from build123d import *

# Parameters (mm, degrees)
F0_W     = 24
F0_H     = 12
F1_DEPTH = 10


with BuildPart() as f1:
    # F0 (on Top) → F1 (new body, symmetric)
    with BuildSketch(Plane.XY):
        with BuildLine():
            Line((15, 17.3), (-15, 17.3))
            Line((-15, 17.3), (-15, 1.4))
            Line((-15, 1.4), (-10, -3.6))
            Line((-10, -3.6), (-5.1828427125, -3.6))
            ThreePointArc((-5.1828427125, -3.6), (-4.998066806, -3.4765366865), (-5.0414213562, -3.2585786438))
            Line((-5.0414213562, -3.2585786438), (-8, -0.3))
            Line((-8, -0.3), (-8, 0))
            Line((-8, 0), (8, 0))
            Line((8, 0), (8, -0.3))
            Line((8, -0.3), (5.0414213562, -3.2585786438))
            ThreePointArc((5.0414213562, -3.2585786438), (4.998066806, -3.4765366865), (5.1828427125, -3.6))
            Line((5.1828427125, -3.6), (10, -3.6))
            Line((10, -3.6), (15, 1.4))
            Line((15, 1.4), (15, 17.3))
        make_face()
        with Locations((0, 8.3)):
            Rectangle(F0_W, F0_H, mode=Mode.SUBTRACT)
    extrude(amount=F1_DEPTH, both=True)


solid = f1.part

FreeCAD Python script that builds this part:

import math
import FreeCAD as App
import Part
import Sketcher

V = App.Vector
Q = App.Units.Quantity


def add_polygon(sketch, points):
    """Adds a closed chain of lines whose ends are joined by coincident constraints."""
    first, n = sketch.GeometryCount, len(points)
    for a, b in zip(points, points[1:] + points[:1]):
        sketch.addGeometry(Part.LineSegment(App.Vector(*a, 0), App.Vector(*b, 0)), False)
    for i in range(n):
        sketch.addConstraint(Sketcher.Constraint("Coincident", first + i, 2, first + (i + 1) % n, 1))

doc = App.newDocument("Part")
body = doc.addObject("PartDesign::Body", "Body")

# Sketch on XY plane
sketch1 = body.newObject("Sketcher::SketchObject", "Sketch")
sketch1.AttachmentSupport = (doc.getObject("XY_Plane"), [""])
sketch1.MapMode = "FlatFace"
sketch1.addGeometry(Part.LineSegment(V(15, 17.3, 0), V(-15, 17.3, 0)), False)  # 0
sketch1.addGeometry(Part.LineSegment(V(-15, 17.3, 0), V(-15, 1.4, 0)), False)  # 1
sketch1.addGeometry(Part.LineSegment(V(-15, 1.4, 0), V(-10, -3.6, 0)), False)  # 2
sketch1.addGeometry(Part.LineSegment(V(-10, -3.6, 0), V(-5.18, -3.6, 0)), False)  # 3
sketch1.addGeometry(Part.ArcOfCircle(Part.Circle(V(-5.18, -3.4, 0), V(0, 0, 1), 0.2), math.radians(-90), math.radians(45)), False)  # 4
sketch1.addGeometry(Part.LineSegment(V(-5.04, -3.26, 0), V(-8, -0.3, 0)), False)  # 5
sketch1.addGeometry(Part.LineSegment(V(-8, -0.3, 0), V(-8, 0, 0)), False)  # 6
sketch1.addGeometry(Part.LineSegment(V(-8, 0, 0), V(8, 0, 0)), False)  # 7
sketch1.addGeometry(Part.LineSegment(V(8, 0, 0), V(8, -0.3, 0)), False)  # 8
sketch1.addGeometry(Part.LineSegment(V(8, -0.3, 0), V(5.04, -3.26, 0)), False)  # 9
sketch1.addGeometry(Part.ArcOfCircle(Part.Circle(V(5.18, -3.4, 0), V(0, 0, 1), 0.2), math.radians(135), math.radians(270)), False)  # 10
sketch1.addGeometry(Part.LineSegment(V(5.18, -3.6, 0), V(10, -3.6, 0)), False)  # 11
sketch1.addGeometry(Part.LineSegment(V(10, -3.6, 0), V(15, 1.4, 0)), False)  # 12
sketch1.addGeometry(Part.LineSegment(V(15, 1.4, 0), V(15, 17.3, 0)), False)  # 13
add_polygon(sketch1, [(12, 2.3), (-12, 2.3), (-12, 14.3), (12, 14.3)])  # lines 14-17
sketch1.addConstraint([
    Sketcher.Constraint("Coincident", 0, 2, 1, 1),
    Sketcher.Constraint("Coincident", 1, 2, 2, 1),
    Sketcher.Constraint("Coincident", 2, 2, 3, 1),
    Sketcher.Constraint("Tangent", 3, 2, 4, 1),
    Sketcher.Constraint("Tangent", 4, 2, 5, 1),
    Sketcher.Constraint("Coincident", 5, 2, 6, 1),
    Sketcher.Constraint("Coincident", 6, 2, 7, 1),
    Sketcher.Constraint("Coincident", 7, 2, 8, 1),
    Sketcher.Constraint("Coincident", 8, 2, 9, 1),
    Sketcher.Constraint("Tangent", 9, 2, 10, 1),
    Sketcher.Constraint("Tangent", 10, 2, 11, 1),
    Sketcher.Constraint("Coincident", 11, 2, 12, 1),
    Sketcher.Constraint("Coincident", 12, 2, 13, 1),
    Sketcher.Constraint("Coincident", 13, 2, 0, 1),
    Sketcher.Constraint("Horizontal", 0),
    Sketcher.Constraint("Vertical", 1),
    Sketcher.Constraint("Horizontal", 3),
    Sketcher.Constraint("Vertical", 6),
    Sketcher.Constraint("Horizontal", 7),
    Sketcher.Constraint("Vertical", 8),
    Sketcher.Constraint("Horizontal", 11),
    Sketcher.Constraint("Vertical", 13),
    Sketcher.Constraint("Horizontal", 14),
    Sketcher.Constraint("Vertical", 15),
    Sketcher.Constraint("Horizontal", 16),
    Sketcher.Constraint("Vertical", 17),
    Sketcher.Constraint("Equal", 4, 10),
    Sketcher.Constraint("Symmetric", 6, 2, 7, 2, -1, 1),
    Sketcher.Constraint("Symmetric", 4, 3, 10, 3, -2),
    Sketcher.Constraint("Symmetric", 1, 2, 12, 2, -2),
    Sketcher.Constraint("Parallel", 2, 5),
    Sketcher.Constraint("Perpendicular", 5, 9),
    Sketcher.Constraint("Parallel", 9, 12),
    Sketcher.Constraint("Horizontal", 5, 2, 8, 2),
    Sketcher.Constraint("Radius", 4, Q("0.2 mm")),
    Sketcher.Constraint("DistanceX", 0, 2, 0, 1, Q("30 mm")),
    Sketcher.Constraint("DistanceX", 7, 1, 7, 2, Q("16 mm")),
    Sketcher.Constraint("DistanceX", 14, 2, 14, 1, Q("24 mm")),
    Sketcher.Constraint("DistanceY", 15, 1, 15, 2, Q("12 mm")),
    Sketcher.Constraint("DistanceY", 1, 2, 1, 1, Q("15.9 mm")),
    Sketcher.Constraint("DistanceY", 6, 1, 6, 2, Q("0.3 mm")),
    Sketcher.Constraint("DistanceX", 2, 2, -1, 1, Q("10 mm")),
    Sketcher.Constraint("DistanceX", 14, 2, -1, 1, Q("12 mm")),
    Sketcher.Constraint("DistanceY", 15, 2, 0, 2, Q("3 mm")),
    Sketcher.Constraint("DistanceY", 4, 3, -1, 1, Q("3.4 mm")),
])
pad1 = body.newObject("PartDesign::Pad", "Pad")
pad1.Profile = sketch1
pad1.Length = 20
pad1.Midplane = True

doc.recompute()
